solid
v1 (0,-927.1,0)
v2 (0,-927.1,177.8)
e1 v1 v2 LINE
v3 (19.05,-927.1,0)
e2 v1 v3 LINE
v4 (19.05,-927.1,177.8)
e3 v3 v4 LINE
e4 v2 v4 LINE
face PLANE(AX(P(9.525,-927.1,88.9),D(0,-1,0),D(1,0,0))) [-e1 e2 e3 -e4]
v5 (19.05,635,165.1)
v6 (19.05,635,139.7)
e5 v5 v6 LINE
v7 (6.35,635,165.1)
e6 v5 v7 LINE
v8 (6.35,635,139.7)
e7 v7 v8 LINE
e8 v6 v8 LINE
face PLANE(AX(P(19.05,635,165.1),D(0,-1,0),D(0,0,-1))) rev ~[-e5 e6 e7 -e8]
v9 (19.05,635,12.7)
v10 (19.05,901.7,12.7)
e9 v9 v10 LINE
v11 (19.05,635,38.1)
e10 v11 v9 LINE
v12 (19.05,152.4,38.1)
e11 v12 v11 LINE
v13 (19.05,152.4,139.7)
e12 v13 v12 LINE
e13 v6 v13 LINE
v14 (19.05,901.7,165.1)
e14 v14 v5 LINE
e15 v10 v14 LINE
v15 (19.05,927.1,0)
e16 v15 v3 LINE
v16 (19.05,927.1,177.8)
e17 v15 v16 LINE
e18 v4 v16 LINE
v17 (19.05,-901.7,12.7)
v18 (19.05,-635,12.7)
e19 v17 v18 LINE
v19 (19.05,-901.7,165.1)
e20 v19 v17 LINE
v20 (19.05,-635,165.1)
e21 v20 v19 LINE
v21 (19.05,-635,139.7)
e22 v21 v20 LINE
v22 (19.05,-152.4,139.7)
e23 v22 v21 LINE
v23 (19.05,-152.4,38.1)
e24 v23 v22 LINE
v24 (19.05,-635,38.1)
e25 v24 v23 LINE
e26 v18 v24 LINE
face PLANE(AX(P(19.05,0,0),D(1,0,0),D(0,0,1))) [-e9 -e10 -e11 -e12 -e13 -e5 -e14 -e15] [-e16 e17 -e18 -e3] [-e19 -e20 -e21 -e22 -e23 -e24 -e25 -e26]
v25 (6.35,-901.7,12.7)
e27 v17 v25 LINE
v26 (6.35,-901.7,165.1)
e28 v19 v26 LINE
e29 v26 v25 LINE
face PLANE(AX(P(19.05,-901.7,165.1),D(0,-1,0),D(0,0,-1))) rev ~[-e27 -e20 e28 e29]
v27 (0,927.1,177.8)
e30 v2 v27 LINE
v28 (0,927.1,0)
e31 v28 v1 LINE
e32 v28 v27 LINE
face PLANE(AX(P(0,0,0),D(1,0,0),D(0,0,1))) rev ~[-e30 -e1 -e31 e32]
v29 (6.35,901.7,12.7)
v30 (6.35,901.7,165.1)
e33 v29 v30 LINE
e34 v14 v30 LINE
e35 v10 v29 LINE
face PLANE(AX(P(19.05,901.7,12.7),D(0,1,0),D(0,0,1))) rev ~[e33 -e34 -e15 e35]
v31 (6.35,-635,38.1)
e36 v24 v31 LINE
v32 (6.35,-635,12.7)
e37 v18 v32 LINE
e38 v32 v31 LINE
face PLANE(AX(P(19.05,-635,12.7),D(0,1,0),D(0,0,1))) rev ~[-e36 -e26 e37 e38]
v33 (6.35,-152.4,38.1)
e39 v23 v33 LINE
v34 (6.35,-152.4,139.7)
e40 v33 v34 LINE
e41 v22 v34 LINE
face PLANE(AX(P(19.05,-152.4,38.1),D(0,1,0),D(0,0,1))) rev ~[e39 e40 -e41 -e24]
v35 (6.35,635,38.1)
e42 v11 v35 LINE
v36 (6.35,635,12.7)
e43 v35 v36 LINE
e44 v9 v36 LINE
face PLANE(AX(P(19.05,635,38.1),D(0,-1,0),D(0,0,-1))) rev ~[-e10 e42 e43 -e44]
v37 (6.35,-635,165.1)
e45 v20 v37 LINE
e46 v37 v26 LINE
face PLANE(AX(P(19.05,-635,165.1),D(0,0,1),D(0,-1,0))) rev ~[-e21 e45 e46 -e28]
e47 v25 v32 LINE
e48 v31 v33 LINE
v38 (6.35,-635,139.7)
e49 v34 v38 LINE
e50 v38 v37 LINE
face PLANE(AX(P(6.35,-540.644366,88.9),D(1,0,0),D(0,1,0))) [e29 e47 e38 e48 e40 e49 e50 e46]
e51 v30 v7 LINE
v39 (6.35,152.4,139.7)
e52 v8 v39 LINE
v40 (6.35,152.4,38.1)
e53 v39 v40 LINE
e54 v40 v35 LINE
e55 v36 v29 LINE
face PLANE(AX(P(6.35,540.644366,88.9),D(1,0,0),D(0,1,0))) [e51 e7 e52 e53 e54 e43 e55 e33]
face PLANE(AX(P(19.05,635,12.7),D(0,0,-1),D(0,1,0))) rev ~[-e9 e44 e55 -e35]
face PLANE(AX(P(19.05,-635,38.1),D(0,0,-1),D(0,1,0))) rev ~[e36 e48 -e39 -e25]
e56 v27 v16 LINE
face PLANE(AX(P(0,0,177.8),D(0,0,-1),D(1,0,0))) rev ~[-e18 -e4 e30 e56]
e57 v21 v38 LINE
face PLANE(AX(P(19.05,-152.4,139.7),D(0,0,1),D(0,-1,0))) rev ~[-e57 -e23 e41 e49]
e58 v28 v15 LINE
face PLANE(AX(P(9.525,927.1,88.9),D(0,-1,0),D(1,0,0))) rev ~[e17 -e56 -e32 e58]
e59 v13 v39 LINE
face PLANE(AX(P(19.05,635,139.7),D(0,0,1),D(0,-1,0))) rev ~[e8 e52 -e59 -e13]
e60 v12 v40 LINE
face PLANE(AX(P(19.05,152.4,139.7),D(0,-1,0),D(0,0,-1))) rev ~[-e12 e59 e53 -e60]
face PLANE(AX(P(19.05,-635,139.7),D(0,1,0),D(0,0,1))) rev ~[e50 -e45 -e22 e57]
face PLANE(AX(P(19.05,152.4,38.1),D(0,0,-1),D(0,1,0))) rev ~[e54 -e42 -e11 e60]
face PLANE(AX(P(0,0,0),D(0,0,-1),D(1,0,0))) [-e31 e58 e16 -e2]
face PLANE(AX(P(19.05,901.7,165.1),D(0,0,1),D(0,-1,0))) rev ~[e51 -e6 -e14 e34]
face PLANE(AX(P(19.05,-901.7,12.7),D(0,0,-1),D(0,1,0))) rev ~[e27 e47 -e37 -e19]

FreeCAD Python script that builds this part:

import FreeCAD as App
import Part
import Sketcher
from FreeCAD import Vector
Q = App.Units.Quantity


def add_polygon(sketch, points):
    """Adds a closed chain of lines whose ends are joined by coincident constraints."""
    first, n = sketch.GeometryCount, len(points)
    for a, b in zip(points, points[1:] + points[:1]):
        sketch.addGeometry(Part.LineSegment(App.Vector(*a, 0), App.Vector(*b, 0)), False)
    for i in range(n):
        sketch.addConstraint(Sketcher.Constraint("Coincident", first + i, 2, first + (i + 1) % n, 1))

doc = App.newDocument("Part")
body = doc.addObject("PartDesign::Body", "Body")

sketch1 = body.newObject("Sketcher::SketchObject", "Sketch")
sketch1.AttachmentSupport = (doc.getObject("XZ_Plane"), [""])
sketch1.MapMode = "FlatFace"
add_polygon(sketch1, [(0, 178), (0, 0), (19, 0), (19, 178)])
sketch1.addConstraint(Sketcher.Constraint("Vertical", 0))
sketch1.addConstraint(Sketcher.Constraint("Horizontal", 1))
sketch1.addConstraint(Sketcher.Constraint("Vertical", 2))
sketch1.addConstraint(Sketcher.Constraint("Horizontal", 3))
sketch1.addConstraint(Sketcher.Constraint("Coincident", 0, 2, -1, 1))
sketch1.addConstraint(Sketcher.Constraint("DistanceY", 0, 2, 0, 1, Q("7 in")))
sketch1.addConstraint(Sketcher.Constraint("DistanceX", 1, 1, 1, 2, Q("0.75 in")))
pad1 = body.newObject("PartDesign::Pad", "Pad")
pad1.Profile = sketch1
pad1.Length = Q("73 in")
pad1.Midplane = True

sketch2 = body.newObject("Sketcher::SketchObject", "Sketch001")
sketch2.AttachmentSupport = (doc.getObject("YZ_Plane"), [""])
sketch2.MapMode = "FlatFace"
sketch2.AttachmentOffset = App.Placement(Vector(0, 0, 0.75 * 25.4), App.Rotation())
add_polygon(sketch2, [(-902, 165), (-902, 13), (-635, 13), (-635, 38), (-152, 38), (-152, 140), (-635, 140), (-635, 165)])
add_polygon(sketch2, [(902, 13), (902, 165), (635, 165), (635, 140), (152, 140), (152, 38), (635, 38), (635, 13)])
sketch2.addConstraint(Sketcher.Constraint("Vertical", 0))
sketch2.addConstraint(Sketcher.Constraint("Horizontal", 1))
sketch2.addConstraint(Sketcher.Constraint("Vertical", 2))
sketch2.addConstraint(Sketcher.Constraint("Horizontal", 3))
sketch2.addConstraint(Sketcher.Constraint("Vertical", 4))
sketch2.addConstraint(Sketcher.Constraint("Horizontal", 5))
sketch2.addConstraint(Sketcher.Constraint("Vertical", 6))
sketch2.addConstraint(Sketcher.Constraint("Horizontal", 7))
sketch2.addConstraint(Sketcher.Constraint("Vertical", 8))
sketch2.addConstraint(Sketcher.Constraint("Horizontal", 9))
sketch2.addConstraint(Sketcher.Constraint("Vertical", 10))
sketch2.addConstraint(Sketcher.Constraint("Horizontal", 11))
sketch2.addConstraint(Sketcher.Constraint("Vertical", 12))
sketch2.addConstraint(Sketcher.Constraint("Horizontal", 13))
sketch2.addConstraint(Sketcher.Constraint("Vertical", 14))
sketch2.addConstraint(Sketcher.Constraint("Horizontal", 15))
sketch2.addConstraint(Sketcher.Constraint("Symmetric", 7, 2, 8, 2, -2))
sketch2.addConstraint(Sketcher.Constraint("Symmetric", 5, 2, 10, 2, -2))
sketch2.addConstraint(Sketcher.Constraint("Symmetric", 3, 2, 12, 2, -2))
sketch2.addConstraint(Sketcher.Constraint("Symmetric", 1, 2, 14, 2, -2))
sketch2.addConstraint(Sketcher.Constraint("Vertical", 2, 2, 5, 2))
sketch2.addConstraint(Sketcher.Constraint("Equal", 2, 6))
sketch2.addConstraint(Sketcher.Constraint("DistanceX", 3, 1, 3, 2, Q("19 in")))
sketch2.addConstraint(Sketcher.Constraint("DistanceY", 0, 2, 0, 1, Q("6 in")))
sketch2.addConstraint(Sketcher.Constraint("DistanceY", 2, 1, 2, 2, Q("1 in")))
sketch2.addConstraint(Sketcher.Constraint("DistanceX", 1, 1, 1, 2, Q("10.5 in")))
sketch2.addConstraint(Sketcher.Constraint("DistanceX", 1, 2, -1, 1, Q("25 in")))
sketch2.addConstraint(Sketcher.Constraint("DistanceY", -1, 1, 0, 2, Q("0.5 in")))
pocket1 = body.newObject("PartDesign::Pocket", "Pocket")
pocket1.Profile = sketch2
pocket1.Length = Q("0.5 in")

doc.recompute()
